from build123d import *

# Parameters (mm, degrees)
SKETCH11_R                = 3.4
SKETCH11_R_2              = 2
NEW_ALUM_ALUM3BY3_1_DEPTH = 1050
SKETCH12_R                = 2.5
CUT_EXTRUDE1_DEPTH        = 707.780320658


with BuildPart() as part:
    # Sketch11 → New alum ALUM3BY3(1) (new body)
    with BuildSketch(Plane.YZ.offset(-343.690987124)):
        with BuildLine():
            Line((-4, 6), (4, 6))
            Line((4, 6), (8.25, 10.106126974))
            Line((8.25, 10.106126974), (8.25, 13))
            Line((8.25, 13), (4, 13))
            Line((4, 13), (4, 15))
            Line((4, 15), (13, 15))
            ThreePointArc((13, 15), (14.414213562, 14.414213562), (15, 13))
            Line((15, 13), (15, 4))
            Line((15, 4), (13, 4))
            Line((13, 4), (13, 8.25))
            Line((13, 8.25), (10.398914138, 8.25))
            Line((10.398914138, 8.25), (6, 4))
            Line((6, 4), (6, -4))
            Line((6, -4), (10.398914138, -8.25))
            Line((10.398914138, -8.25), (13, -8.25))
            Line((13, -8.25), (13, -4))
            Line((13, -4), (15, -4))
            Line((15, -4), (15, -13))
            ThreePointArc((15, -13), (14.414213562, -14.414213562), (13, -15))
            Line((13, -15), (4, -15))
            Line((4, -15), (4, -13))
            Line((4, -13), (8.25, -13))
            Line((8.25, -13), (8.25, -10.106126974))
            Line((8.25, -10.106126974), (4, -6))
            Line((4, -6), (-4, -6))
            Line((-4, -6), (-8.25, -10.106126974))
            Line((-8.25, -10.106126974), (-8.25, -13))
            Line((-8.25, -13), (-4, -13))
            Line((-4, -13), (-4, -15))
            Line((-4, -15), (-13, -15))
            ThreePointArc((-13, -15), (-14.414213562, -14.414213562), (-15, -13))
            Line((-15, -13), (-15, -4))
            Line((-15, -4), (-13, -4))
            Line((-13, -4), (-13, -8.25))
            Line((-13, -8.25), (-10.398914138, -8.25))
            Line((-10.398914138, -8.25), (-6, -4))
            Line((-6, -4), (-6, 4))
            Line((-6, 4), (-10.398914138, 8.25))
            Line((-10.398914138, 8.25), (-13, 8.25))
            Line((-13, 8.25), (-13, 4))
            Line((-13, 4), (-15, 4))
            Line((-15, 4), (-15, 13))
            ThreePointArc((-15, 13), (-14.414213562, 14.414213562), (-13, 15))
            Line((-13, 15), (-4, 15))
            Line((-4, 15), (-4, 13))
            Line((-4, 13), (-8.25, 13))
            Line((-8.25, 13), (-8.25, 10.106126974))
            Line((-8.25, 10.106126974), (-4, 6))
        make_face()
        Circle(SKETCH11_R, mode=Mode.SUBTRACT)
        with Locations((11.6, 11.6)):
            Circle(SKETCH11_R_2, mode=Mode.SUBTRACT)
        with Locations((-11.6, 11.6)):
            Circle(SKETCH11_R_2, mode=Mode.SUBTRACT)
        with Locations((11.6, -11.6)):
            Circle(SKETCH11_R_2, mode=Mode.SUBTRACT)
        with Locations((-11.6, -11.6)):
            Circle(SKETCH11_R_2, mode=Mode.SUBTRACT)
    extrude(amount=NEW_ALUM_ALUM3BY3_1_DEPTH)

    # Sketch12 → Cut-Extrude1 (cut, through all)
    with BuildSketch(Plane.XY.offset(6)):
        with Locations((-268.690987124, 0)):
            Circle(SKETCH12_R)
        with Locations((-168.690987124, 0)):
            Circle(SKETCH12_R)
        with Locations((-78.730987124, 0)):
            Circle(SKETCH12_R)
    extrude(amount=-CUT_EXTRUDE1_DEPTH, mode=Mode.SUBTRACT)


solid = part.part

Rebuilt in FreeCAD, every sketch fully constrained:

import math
import FreeCAD as App
import Part
import Sketcher

doc = App.newDocument("Part")
params = doc.addObject("Spreadsheet::Sheet", "Params")
for row, (alias, value) in enumerate([
    ("sketch1_diameter", "4 mm"),
    ("sketch1_diameter2", "6.8 mm"),
    ("sketch1_width", "8 mm"),
    ("sketch1_width2", "9 mm"),
    ("sketch1_width3", "4.25 mm"),
    ("pad1_length", "1050 mm"),
    ("sketch2_diameter", "5 mm"),
], start=1):
    params.set(f"A{row}", alias)
    params.set(f"B{row}", "=" + value)
    params.setAlias(f"B{row}", alias)

body = doc.addObject("PartDesign::Body", "Body")

# Sketch on YZ plane
sketch1 = body.newObject("Sketcher::SketchObject", "Sketch")
sketch1.AttachmentSupport = (doc.getObject("YZ_Plane"), [""])
sketch1.MapMode = "FlatFace"
sketch1.AttachmentOffset = App.Placement(App.Vector(0, 0, -343.690987), App.Rotation())
sketch1.addGeometry([
    Part.LineSegment(App.Vector(4, 6, 0), App.Vector(-4, 6, 0)),  # 0
    Part.LineSegment(App.Vector(-4, 6, 0), App.Vector(-8.2, 10.1, 0)),  # 1
    Part.LineSegment(App.Vector(-8.2, 10.1, 0), App.Vector(-8.2, 13, 0)),  # 2
    Part.LineSegment(App.Vector(-8.2, 13, 0), App.Vector(-4, 13, 0)),  # 3
    Part.LineSegment(App.Vector(-4, 13, 0), App.Vector(-4, 15, 0)),  # 4
    Part.LineSegment(App.Vector(-4, 15, 0), App.Vector(-13, 15, 0)),  # 5
    Part.ArcOfCircle(Part.Circle(App.Vector(-13, 13, 0), App.Vector(0, 0, 1), 2), math.radians(90), math.radians(180)),  # 6
    Part.LineSegment(App.Vector(-15, 13, 0), App.Vector(-15, 4, 0)),  # 7
    Part.LineSegment(App.Vector(-15, 4, 0), App.Vector(-13, 4, 0)),  # 8
    Part.LineSegment(App.Vector(-13, 4, 0), App.Vector(-13, 8.2, 0)),  # 9
    Part.LineSegment(App.Vector(-13, 8.2, 0), App.Vector(-10.4, 8.2, 0)),  # 10
    Part.LineSegment(App.Vector(-10.4, 8.2, 0), App.Vector(-6, 4, 0)),  # 11
    Part.LineSegment(App.Vector(-6, 4, 0), App.Vector(-6, -4, 0)),  # 12
    Part.LineSegment(App.Vector(-6, -4, 0), App.Vector(-10.4, -8.2, 0)),  # 13
    Part.LineSegment(App.Vector(-10.4, -8.2, 0), App.Vector(-13, -8.2, 0)),  # 14
    Part.LineSegment(App.Vector(-13, -8.2, 0), App.Vector(-13, -4, 0)),  # 15
    Part.LineSegment(App.Vector(-13, -4, 0), App.Vector(-15, -4, 0)),  # 16
    Part.LineSegment(App.Vector(-15, -4, 0), App.Vector(-15, -13, 0)),  # 17
    Part.ArcOfCircle(Part.Circle(App.Vector(-13, -13, 0), App.Vector(0, 0, 1), 2), math.radians(-180), math.radians(-90)),  # 18
    Part.LineSegment(App.Vector(-13, -15, 0), App.Vector(-4, -15, 0)),  # 19
    Part.LineSegment(App.Vector(-4, -15, 0), App.Vector(-4, -13, 0)),  # 20
    Part.LineSegment(App.Vector(-4, -13, 0), App.Vector(-8.2, -13, 0)),  # 21
    Part.LineSegment(App.Vector(-8.2, -13, 0), App.Vector(-8.2, -10.1, 0)),  # 22
    Part.LineSegment(App.Vector(-8.2, -10.1, 0), App.Vector(-4, -6, 0)),  # 23
    Part.LineSegment(App.Vector(-4, -6, 0), App.Vector(4, -6, 0)),  # 24
    Part.LineSegment(App.Vector(4, -6, 0), App.Vector(8.2, -10.1, 0)),  # 25
    Part.LineSegment(App.Vector(8.2, -10.1, 0), App.Vector(8.2, -13, 0)),  # 26
    Part.LineSegment(App.Vector(8.2, -13, 0), App.Vector(4, -13, 0)),  # 27
    Part.LineSegment(App.Vector(4, -13, 0), App.Vector(4, -15, 0)),  # 28
    Part.LineSegment(App.Vector(4, -15, 0), App.Vector(13, -15, 0)),  # 29
    Part.ArcOfCircle(Part.Circle(App.Vector(13, -13, 0), App.Vector(0, 0, 1), 2), math.radians(-90), math.radians(0)),  # 30
    Part.LineSegment(App.Vector(15, -13, 0), App.Vector(15, -4, 0)),  # 31
    Part.LineSegment(App.Vector(15, -4, 0), App.Vector(13, -4, 0)),  # 32
    Part.LineSegment(App.Vector(13, -4, 0), App.Vector(13, -8.2, 0)),  # 33
    Part.LineSegment(App.Vector(13, -8.2, 0), App.Vector(10.4, -8.2, 0)),  # 34
    Part.LineSegment(App.Vector(10.4, -8.2, 0), App.Vector(6, -4, 0)),  # 35
    Part.LineSegment(App.Vector(6, -4, 0), App.Vector(6, 4, 0)),  # 36
    Part.LineSegment(App.Vector(6, 4, 0), App.Vector(10.4, 8.2, 0)),  # 37
    Part.LineSegment(App.Vector(10.4, 8.2, 0), App.Vector(13, 8.2, 0)),  # 38
    Part.LineSegment(App.Vector(13, 8.2, 0), App.Vector(13, 4, 0)),  # 39
    Part.LineSegment(App.Vector(13, 4, 0), App.Vector(15, 4, 0)),  # 40
    Part.LineSegment(App.Vector(15, 4, 0), App.Vector(15, 13, 0)),  # 41
    Part.ArcOfCircle(Part.Circle(App.Vector(13, 13, 0), App.Vector(0, 0, 1), 2), math.radians(0), math.radians(90)),  # 42
    Part.LineSegment(App.Vector(13, 15, 0), App.Vector(4, 15, 0)),  # 43
    Part.LineSegment(App.Vector(4, 15, 0), App.Vector(4, 13, 0)),  # 44
    Part.LineSegment(App.Vector(4, 13, 0), App.Vector(8.2, 13, 0)),  # 45
    Part.LineSegment(App.Vector(8.2, 13, 0), App.Vector(8.2, 10.1, 0)),  # 46
    Part.LineSegment(App.Vector(8.2, 10.1, 0), App.Vector(4, 6, 0)),  # 47
    Part.Circle(App.Vector(11.6, -11.6, 0), App.Vector(0, 0, 1), 2),  # 48
    Part.Circle(App.Vector(-11.6, -11.6, 0), App.Vector(0, 0, 1), 2),  # 49
    Part.Circle(App.Vector(0, 0, 0), App.Vector(0, 0, 1), 3.4),  # 50
    Part.Circle(App.Vector(11.6, 11.6, 0), App.Vector(0, 0, 1), 2),  # 51
    Part.Circle(App.Vector(-11.6, 11.6, 0), App.Vector(0, 0, 1), 2),  # 52
], False)
sketch1.addConstraint([
    Sketcher.Constraint("Coincident", 0, 2, 1, 1),
    Sketcher.Constraint("Coincident", 1, 2, 2, 1),
    Sketcher.Constraint("Coincident", 2, 2, 3, 1),
    Sketcher.Constraint("Coincident", 3, 2, 4, 1),
    Sketcher.Constraint("Coincident", 4, 2, 5, 1),
    Sketcher.Constraint("Tangent", 5, 2, 6, 1),
    Sketcher.Constraint("Tangent", 6, 2, 7, 1),
    Sketcher.Constraint("Coincident", 7, 2, 8, 1),
    Sketcher.Constraint("Coincident", 8, 2, 9, 1),
    Sketcher.Constraint("Coincident", 9, 2, 10, 1),
    Sketcher.Constraint("Coincident", 10, 2, 11, 1),
    Sketcher.Constraint("Coincident", 11, 2, 12, 1),
    Sketcher.Constraint("Coincident", 12, 2, 13, 1),
    Sketcher.Constraint("Coincident", 13, 2, 14, 1),
    Sketcher.Constraint("Coincident", 14, 2, 15, 1),
    Sketcher.Constraint("Coincident", 15, 2, 16, 1),
    Sketcher.Constraint("Coincident", 16, 2, 17, 1),
    Sketcher.Constraint("Tangent", 17, 2, 18, 1),
    Sketcher.Constraint("Tangent", 18, 2, 19, 1),
    Sketcher.Constraint("Coincident", 19, 2, 20, 1),
    Sketcher.Constraint("Coincident", 20, 2, 21, 1),
    Sketcher.Constraint("Coincident", 21, 2, 22, 1),
    Sketcher.Constraint("Coincident", 22, 2, 23, 1),
    Sketcher.Constraint("Coincident", 23, 2, 24, 1),
    Sketcher.Constraint("Coincident", 24, 2, 25, 1),
    Sketcher.Constraint("Coincident", 25, 2, 26, 1),
    Sketcher.Constraint("Coincident", 26, 2, 27, 1),
    Sketcher.Constraint("Coincident", 27, 2, 28, 1),
    Sketcher.Constraint("Coincident", 28, 2, 29, 1),
    Sketcher.Constraint("Tangent", 29, 2, 30, 1),
    Sketcher.Constraint("Tangent", 30, 2, 31, 1),
    Sketcher.Constraint("Coincident", 31, 2, 32, 1),
    Sketcher.Constraint("Coincident", 32, 2, 33, 1),
    Sketcher.Constraint("Coincident", 33, 2, 34, 1),
    Sketcher.Constraint("Coincident", 34, 2, 35, 1),
    Sketcher.Constraint("Coincident", 35, 2, 36, 1),
    Sketcher.Constraint("Coincident", 36, 2, 37, 1),
    Sketcher.Constraint("Coincident", 37, 2, 38, 1),
    Sketcher.Constraint("Coincident", 38, 2, 39, 1),
    Sketcher.Constraint("Coincident", 39, 2, 40, 1),
    Sketcher.Constraint("Coincident", 40, 2, 41, 1),
    Sketcher.Constraint("Tangent", 41, 2, 42, 1),
    Sketcher.Constraint("Tangent", 42, 2, 43, 1),
    Sketcher.Constraint("Coincident", 43, 2, 44, 1),
    Sketcher.Constraint("Coincident", 44, 2, 45, 1),
    Sketcher.Constraint("Coincident", 45, 2, 46, 1),
    Sketcher.Constraint("Coincident", 46, 2, 47, 1),
    Sketcher.Constraint("Coincident", 47, 2, 0, 1),
    Sketcher.Constraint("Horizontal", 0),
    Sketcher.Constraint("Vertical", 2),
    Sketcher.Constraint("Horizontal", 3),
    Sketcher.Constraint("Vertical", 4),
    Sketcher.Constraint("Horizontal", 5),
    Sketcher.Constraint("Vertical", 7),
    Sketcher.Constraint("Horizontal", 8),
    Sketcher.Constraint("Vertical", 9),
    Sketcher.Constraint("Horizontal", 10),
    Sketcher.Constraint("Vertical", 12),
    Sketcher.Constraint("Horizontal", 14),
    Sketcher.Constraint("Vertical", 15),
    Sketcher.Constraint("Horizontal", 16),
    Sketcher.Constraint("Vertical", 17),
    Sketcher.Constraint("Horizontal", 19),
    Sketcher.Constraint("Vertical", 20),
    Sketcher.Constraint("Horizontal", 21),
    Sketcher.Constraint("Vertical", 22),
    Sketcher.Constraint("Horizontal", 24),
    Sketcher.Constraint("Vertical", 26),
    Sketcher.Constraint("Horizontal", 27),
    Sketcher.Constraint("Vertical", 28),
    Sketcher.Constraint("Horizontal", 29),
    Sketcher.Constraint("Vertical", 31),
    Sketcher.Constraint("Horizontal", 32),
    Sketcher.Constraint("Vertical", 33),
    Sketcher.Constraint("Horizontal", 34),
    Sketcher.Constraint("Vertical", 36),
    Sketcher.Constraint("Horizontal", 38),
    Sketcher.Constraint("Vertical", 39),
    Sketcher.Constraint("Horizontal", 40),
    Sketcher.Constraint("Vertical", 41),
    Sketcher.Constraint("Horizontal", 43),
    Sketcher.Constraint("Vertical", 44),
    Sketcher.Constraint("Horizontal", 45),
    Sketcher.Constraint("Vertical", 46),
    Sketcher.Constraint("Coincident", 50, 3, -1, 1),
    Sketcher.Constraint("Equal", 6, 18),
    Sketcher.Constraint("Equal", 18, 30),
    Sketcher.Constraint("Equal", 30, 42),
    Sketcher.Constraint("Equal", 42, 48),
    Sketcher.Constraint("Equal", 48, 49),
    Sketcher.Constraint("Equal", 49, 51),
    Sketcher.Constraint("Equal", 51, 52),
    Sketcher.Constraint("Symmetric", 6, 3, 30, 3, -1, 1),
    Sketcher.Constraint("Symmetric", 18, 3, 42, 3, -1, 1),
    Sketcher.Constraint("Symmetric", 49, 3, 51, 3, -1, 1),
    Sketcher.Constraint("Symmetric", 48, 3, 52, 3, -1, 1),
    Sketcher.Constraint("Symmetric", 0, 2, 24, 2, -1, 1),
    Sketcher.Constraint("Symmetric", 1, 2, 25, 2, -1, 1),
    Sketcher.Constraint("Symmetric", 3, 2, 27, 2, -1, 1),
    Sketcher.Constraint("Symmetric", 8, 2, 32, 2, -1, 1),
    Sketcher.Constraint("Symmetric", 10, 2, 34, 2, -1, 1),
    Sketcher.Constraint("Symmetric", 11, 2, 35, 2, -1, 1),
    Sketcher.Constraint("Symmetric", 13, 2, 37, 2, -1, 1),
    Sketcher.Constraint("Symmetric", 15, 2, 39, 2, -1, 1),
    Sketcher.Constraint("Symmetric", 20, 2, 44, 2, -1, 1),
    Sketcher.Constraint("Symmetric", 22, 2, 46, 2, -1, 1),
    Sketcher.Constraint("Symmetric", 18, 3, 30, 3, -2),
    Sketcher.Constraint("Symmetric", 48, 3, 49, 3, -2),
    Sketcher.Constraint("Symmetric", 22, 2, 25, 2, -2),
    Sketcher.Constraint("Symmetric", 20, 2, 27, 2, -2),
    Sketcher.Constraint("Symmetric", 15, 2, 32, 2, -2),
    Sketcher.Constraint("Symmetric", 13, 2, 34, 2, -2),
    Sketcher.Constraint("Parallel", 1, 11),
    Sketcher.Constraint("Parallel", 13, 23),
    Sketcher.Constraint("Parallel", 23, 37),
    Sketcher.Constraint("Parallel", 37, 47),
    Sketcher.Constraint("Horizontal", 42, 3, 2, 2),
    Sketcher.Constraint("Horizontal", 8, 2, 11, 2),
    Sketcher.Constraint("Horizontal", 12, 2, 15, 2),
    Sketcher.Constraint("Vertical", 0, 2, 3, 2),
    Sketcher.Constraint("Vertical", 5, 2, 8, 2),
    Sketcher.Constraint("Equal", 43, 7),
    Sketcher.Constraint("Equal", 45, 9),
    Sketcher.Constraint("Equal", 24, 12),
    Sketcher.Constraint("Diameter", 48, 4.0),
    Sketcher.Constraint("Diameter", 50, 6.8),
    Sketcher.Constraint("DistanceX", 0, 2, 0, 1, 8.0),
    Sketcher.Constraint("DistanceX", 5, 2, 5, 1, 9.0),
    Sketcher.Constraint("DistanceY", -1, 1, 0, 2, 6.0),
    Sketcher.Constraint("DistanceX", 11, 2, -1, 1, 6.0),
    Sketcher.Constraint("DistanceX", 3, 1, 3, 2, 4.25),
    Sketcher.Constraint("DistanceX", -1, 1, 48, 3, 11.6),
    Sketcher.Constraint("DistanceY", 48, 3, -1, 1, 11.6),
    Sketcher.Constraint("Distance", 1, 5.90955),
])
sketch1.setExpression("Constraints[124]", "Params.sketch1_diameter")
sketch1.setExpression("Constraints[125]", "Params.sketch1_diameter2")
sketch1.setExpression("Constraints[126]", "Params.sketch1_width")
sketch1.setExpression("Constraints[127]", "Params.sketch1_width2")
sketch1.setExpression("Constraints[130]", "Params.sketch1_width3")
pad1 = body.newObject("PartDesign::Pad", "Pad")
pad1.Profile = sketch1
pad1.setExpression("Length", "Params.pad1_length")

# Sketch on XY plane
sketch2 = body.newObject("Sketcher::SketchObject", "Sketch001")
sketch2.AttachmentSupport = (doc.getObject("XY_Plane"), [""])
sketch2.MapMode = "FlatFace"
sketch2.AttachmentOffset = App.Placement(App.Vector(0, 0, 6), App.Rotation())
sketch2.addGeometry([
    Part.Circle(App.Vector(-268.7, 0, 0), App.Vector(0, 0, 1), 2.5),
    Part.Circle(App.Vector(-168.7, 0, 0), App.Vector(0, 0, 1), 2.5),
    Part.Circle(App.Vector(-78.7, 0, 0), App.Vector(0, 0, 1), 2.5),
], False)
sketch2.addConstraint([
    Sketcher.Constraint("Equal", 0, 1),
    Sketcher.Constraint("Equal", 1, 2),
    Sketcher.Constraint("PointOnObject", 0, 3, -1),
    Sketcher.Constraint("PointOnObject", 1, 3, -1),
    Sketcher.Constraint("PointOnObject", 2, 3, -1),
    Sketcher.Constraint("Diameter", 0, 5.0),
    Sketcher.Constraint("DistanceX", 0, 3, 1, 3, 100.0),
    Sketcher.Constraint("DistanceX", 1, 3, 2, 3, 89.96),
    Sketcher.Constraint("DistanceX", 0, 3, -1, 1, 268.690987),
])
sketch2.setExpression("Constraints[5]", "Params.sketch2_diameter")
pocket1 = body.newObject("PartDesign::Pocket", "Pocket")
pocket1.Profile = sketch2
pocket1.Type = "ThroughAll"

doc.recompute()
